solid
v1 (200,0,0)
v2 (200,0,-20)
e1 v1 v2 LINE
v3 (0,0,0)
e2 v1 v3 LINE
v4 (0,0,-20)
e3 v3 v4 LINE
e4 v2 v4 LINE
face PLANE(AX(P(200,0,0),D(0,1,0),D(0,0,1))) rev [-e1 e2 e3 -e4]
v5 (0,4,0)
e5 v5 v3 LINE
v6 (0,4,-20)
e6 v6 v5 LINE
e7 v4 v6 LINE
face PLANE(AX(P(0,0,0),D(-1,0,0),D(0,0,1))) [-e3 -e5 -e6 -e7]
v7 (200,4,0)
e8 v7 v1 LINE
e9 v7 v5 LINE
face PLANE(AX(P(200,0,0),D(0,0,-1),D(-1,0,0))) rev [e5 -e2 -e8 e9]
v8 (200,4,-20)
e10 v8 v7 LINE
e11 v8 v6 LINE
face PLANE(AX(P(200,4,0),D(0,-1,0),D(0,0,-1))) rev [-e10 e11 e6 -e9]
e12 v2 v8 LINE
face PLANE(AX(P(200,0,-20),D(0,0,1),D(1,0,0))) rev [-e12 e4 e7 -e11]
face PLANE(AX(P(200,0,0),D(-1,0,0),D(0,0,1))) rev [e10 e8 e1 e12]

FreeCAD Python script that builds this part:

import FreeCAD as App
import Part
import Sketcher
from FreeCAD import Vector
Q = App.Units.Quantity

doc = App.newDocument("Part")
body = doc.addObject("PartDesign::Body", "Body")

# Sketch on YZ plane
sketch1 = body.newObject("Sketcher::SketchObject", "Sketch")
sketch1.AttachmentSupport = (doc.getObject("YZ_Plane"), [""])
sketch1.MapMode = "FlatFace"
sketch1.addGeometry([
    Part.LineSegment(Vector(4, 0, 0), Vector(0, 0, 0)),
    Part.LineSegment(Vector(0, 0, 0), Vector(0, -20, 0)),
    Part.LineSegment(Vector(0, -20, 0), Vector(4, -20, 0)),
    Part.LineSegment(Vector(4, -20, 0), Vector(4, 0, 0)),
], False)
sketch1.addConstraint([
    Sketcher.Constraint("Coincident", 0, 2, 1, 1),
    Sketcher.Constraint("Coincident", 1, 2, 2, 1),
    Sketcher.Constraint("Coincident", 2, 2, 3, 1),
    Sketcher.Constraint("Coincident", 3, 2, 0, 1),
    Sketcher.Constraint("Horizontal", 0),
    Sketcher.Constraint("Vertical", 1),
    Sketcher.Constraint("Horizontal", 2),
    Sketcher.Constraint("Vertical", 3),
    Sketcher.Constraint("Coincident", 0, 2, -1, 1),
    Sketcher.Constraint("DistanceX", 0, 2, 0, 1, Q("4 mm")),
    Sketcher.Constraint("DistanceY", 1, 2, 1, 1, Q("20 mm")),
])
pad1 = body.newObject("PartDesign::Pad", "Pad")
pad1.Profile = sketch1
pad1.Length = 200

doc.recompute()
